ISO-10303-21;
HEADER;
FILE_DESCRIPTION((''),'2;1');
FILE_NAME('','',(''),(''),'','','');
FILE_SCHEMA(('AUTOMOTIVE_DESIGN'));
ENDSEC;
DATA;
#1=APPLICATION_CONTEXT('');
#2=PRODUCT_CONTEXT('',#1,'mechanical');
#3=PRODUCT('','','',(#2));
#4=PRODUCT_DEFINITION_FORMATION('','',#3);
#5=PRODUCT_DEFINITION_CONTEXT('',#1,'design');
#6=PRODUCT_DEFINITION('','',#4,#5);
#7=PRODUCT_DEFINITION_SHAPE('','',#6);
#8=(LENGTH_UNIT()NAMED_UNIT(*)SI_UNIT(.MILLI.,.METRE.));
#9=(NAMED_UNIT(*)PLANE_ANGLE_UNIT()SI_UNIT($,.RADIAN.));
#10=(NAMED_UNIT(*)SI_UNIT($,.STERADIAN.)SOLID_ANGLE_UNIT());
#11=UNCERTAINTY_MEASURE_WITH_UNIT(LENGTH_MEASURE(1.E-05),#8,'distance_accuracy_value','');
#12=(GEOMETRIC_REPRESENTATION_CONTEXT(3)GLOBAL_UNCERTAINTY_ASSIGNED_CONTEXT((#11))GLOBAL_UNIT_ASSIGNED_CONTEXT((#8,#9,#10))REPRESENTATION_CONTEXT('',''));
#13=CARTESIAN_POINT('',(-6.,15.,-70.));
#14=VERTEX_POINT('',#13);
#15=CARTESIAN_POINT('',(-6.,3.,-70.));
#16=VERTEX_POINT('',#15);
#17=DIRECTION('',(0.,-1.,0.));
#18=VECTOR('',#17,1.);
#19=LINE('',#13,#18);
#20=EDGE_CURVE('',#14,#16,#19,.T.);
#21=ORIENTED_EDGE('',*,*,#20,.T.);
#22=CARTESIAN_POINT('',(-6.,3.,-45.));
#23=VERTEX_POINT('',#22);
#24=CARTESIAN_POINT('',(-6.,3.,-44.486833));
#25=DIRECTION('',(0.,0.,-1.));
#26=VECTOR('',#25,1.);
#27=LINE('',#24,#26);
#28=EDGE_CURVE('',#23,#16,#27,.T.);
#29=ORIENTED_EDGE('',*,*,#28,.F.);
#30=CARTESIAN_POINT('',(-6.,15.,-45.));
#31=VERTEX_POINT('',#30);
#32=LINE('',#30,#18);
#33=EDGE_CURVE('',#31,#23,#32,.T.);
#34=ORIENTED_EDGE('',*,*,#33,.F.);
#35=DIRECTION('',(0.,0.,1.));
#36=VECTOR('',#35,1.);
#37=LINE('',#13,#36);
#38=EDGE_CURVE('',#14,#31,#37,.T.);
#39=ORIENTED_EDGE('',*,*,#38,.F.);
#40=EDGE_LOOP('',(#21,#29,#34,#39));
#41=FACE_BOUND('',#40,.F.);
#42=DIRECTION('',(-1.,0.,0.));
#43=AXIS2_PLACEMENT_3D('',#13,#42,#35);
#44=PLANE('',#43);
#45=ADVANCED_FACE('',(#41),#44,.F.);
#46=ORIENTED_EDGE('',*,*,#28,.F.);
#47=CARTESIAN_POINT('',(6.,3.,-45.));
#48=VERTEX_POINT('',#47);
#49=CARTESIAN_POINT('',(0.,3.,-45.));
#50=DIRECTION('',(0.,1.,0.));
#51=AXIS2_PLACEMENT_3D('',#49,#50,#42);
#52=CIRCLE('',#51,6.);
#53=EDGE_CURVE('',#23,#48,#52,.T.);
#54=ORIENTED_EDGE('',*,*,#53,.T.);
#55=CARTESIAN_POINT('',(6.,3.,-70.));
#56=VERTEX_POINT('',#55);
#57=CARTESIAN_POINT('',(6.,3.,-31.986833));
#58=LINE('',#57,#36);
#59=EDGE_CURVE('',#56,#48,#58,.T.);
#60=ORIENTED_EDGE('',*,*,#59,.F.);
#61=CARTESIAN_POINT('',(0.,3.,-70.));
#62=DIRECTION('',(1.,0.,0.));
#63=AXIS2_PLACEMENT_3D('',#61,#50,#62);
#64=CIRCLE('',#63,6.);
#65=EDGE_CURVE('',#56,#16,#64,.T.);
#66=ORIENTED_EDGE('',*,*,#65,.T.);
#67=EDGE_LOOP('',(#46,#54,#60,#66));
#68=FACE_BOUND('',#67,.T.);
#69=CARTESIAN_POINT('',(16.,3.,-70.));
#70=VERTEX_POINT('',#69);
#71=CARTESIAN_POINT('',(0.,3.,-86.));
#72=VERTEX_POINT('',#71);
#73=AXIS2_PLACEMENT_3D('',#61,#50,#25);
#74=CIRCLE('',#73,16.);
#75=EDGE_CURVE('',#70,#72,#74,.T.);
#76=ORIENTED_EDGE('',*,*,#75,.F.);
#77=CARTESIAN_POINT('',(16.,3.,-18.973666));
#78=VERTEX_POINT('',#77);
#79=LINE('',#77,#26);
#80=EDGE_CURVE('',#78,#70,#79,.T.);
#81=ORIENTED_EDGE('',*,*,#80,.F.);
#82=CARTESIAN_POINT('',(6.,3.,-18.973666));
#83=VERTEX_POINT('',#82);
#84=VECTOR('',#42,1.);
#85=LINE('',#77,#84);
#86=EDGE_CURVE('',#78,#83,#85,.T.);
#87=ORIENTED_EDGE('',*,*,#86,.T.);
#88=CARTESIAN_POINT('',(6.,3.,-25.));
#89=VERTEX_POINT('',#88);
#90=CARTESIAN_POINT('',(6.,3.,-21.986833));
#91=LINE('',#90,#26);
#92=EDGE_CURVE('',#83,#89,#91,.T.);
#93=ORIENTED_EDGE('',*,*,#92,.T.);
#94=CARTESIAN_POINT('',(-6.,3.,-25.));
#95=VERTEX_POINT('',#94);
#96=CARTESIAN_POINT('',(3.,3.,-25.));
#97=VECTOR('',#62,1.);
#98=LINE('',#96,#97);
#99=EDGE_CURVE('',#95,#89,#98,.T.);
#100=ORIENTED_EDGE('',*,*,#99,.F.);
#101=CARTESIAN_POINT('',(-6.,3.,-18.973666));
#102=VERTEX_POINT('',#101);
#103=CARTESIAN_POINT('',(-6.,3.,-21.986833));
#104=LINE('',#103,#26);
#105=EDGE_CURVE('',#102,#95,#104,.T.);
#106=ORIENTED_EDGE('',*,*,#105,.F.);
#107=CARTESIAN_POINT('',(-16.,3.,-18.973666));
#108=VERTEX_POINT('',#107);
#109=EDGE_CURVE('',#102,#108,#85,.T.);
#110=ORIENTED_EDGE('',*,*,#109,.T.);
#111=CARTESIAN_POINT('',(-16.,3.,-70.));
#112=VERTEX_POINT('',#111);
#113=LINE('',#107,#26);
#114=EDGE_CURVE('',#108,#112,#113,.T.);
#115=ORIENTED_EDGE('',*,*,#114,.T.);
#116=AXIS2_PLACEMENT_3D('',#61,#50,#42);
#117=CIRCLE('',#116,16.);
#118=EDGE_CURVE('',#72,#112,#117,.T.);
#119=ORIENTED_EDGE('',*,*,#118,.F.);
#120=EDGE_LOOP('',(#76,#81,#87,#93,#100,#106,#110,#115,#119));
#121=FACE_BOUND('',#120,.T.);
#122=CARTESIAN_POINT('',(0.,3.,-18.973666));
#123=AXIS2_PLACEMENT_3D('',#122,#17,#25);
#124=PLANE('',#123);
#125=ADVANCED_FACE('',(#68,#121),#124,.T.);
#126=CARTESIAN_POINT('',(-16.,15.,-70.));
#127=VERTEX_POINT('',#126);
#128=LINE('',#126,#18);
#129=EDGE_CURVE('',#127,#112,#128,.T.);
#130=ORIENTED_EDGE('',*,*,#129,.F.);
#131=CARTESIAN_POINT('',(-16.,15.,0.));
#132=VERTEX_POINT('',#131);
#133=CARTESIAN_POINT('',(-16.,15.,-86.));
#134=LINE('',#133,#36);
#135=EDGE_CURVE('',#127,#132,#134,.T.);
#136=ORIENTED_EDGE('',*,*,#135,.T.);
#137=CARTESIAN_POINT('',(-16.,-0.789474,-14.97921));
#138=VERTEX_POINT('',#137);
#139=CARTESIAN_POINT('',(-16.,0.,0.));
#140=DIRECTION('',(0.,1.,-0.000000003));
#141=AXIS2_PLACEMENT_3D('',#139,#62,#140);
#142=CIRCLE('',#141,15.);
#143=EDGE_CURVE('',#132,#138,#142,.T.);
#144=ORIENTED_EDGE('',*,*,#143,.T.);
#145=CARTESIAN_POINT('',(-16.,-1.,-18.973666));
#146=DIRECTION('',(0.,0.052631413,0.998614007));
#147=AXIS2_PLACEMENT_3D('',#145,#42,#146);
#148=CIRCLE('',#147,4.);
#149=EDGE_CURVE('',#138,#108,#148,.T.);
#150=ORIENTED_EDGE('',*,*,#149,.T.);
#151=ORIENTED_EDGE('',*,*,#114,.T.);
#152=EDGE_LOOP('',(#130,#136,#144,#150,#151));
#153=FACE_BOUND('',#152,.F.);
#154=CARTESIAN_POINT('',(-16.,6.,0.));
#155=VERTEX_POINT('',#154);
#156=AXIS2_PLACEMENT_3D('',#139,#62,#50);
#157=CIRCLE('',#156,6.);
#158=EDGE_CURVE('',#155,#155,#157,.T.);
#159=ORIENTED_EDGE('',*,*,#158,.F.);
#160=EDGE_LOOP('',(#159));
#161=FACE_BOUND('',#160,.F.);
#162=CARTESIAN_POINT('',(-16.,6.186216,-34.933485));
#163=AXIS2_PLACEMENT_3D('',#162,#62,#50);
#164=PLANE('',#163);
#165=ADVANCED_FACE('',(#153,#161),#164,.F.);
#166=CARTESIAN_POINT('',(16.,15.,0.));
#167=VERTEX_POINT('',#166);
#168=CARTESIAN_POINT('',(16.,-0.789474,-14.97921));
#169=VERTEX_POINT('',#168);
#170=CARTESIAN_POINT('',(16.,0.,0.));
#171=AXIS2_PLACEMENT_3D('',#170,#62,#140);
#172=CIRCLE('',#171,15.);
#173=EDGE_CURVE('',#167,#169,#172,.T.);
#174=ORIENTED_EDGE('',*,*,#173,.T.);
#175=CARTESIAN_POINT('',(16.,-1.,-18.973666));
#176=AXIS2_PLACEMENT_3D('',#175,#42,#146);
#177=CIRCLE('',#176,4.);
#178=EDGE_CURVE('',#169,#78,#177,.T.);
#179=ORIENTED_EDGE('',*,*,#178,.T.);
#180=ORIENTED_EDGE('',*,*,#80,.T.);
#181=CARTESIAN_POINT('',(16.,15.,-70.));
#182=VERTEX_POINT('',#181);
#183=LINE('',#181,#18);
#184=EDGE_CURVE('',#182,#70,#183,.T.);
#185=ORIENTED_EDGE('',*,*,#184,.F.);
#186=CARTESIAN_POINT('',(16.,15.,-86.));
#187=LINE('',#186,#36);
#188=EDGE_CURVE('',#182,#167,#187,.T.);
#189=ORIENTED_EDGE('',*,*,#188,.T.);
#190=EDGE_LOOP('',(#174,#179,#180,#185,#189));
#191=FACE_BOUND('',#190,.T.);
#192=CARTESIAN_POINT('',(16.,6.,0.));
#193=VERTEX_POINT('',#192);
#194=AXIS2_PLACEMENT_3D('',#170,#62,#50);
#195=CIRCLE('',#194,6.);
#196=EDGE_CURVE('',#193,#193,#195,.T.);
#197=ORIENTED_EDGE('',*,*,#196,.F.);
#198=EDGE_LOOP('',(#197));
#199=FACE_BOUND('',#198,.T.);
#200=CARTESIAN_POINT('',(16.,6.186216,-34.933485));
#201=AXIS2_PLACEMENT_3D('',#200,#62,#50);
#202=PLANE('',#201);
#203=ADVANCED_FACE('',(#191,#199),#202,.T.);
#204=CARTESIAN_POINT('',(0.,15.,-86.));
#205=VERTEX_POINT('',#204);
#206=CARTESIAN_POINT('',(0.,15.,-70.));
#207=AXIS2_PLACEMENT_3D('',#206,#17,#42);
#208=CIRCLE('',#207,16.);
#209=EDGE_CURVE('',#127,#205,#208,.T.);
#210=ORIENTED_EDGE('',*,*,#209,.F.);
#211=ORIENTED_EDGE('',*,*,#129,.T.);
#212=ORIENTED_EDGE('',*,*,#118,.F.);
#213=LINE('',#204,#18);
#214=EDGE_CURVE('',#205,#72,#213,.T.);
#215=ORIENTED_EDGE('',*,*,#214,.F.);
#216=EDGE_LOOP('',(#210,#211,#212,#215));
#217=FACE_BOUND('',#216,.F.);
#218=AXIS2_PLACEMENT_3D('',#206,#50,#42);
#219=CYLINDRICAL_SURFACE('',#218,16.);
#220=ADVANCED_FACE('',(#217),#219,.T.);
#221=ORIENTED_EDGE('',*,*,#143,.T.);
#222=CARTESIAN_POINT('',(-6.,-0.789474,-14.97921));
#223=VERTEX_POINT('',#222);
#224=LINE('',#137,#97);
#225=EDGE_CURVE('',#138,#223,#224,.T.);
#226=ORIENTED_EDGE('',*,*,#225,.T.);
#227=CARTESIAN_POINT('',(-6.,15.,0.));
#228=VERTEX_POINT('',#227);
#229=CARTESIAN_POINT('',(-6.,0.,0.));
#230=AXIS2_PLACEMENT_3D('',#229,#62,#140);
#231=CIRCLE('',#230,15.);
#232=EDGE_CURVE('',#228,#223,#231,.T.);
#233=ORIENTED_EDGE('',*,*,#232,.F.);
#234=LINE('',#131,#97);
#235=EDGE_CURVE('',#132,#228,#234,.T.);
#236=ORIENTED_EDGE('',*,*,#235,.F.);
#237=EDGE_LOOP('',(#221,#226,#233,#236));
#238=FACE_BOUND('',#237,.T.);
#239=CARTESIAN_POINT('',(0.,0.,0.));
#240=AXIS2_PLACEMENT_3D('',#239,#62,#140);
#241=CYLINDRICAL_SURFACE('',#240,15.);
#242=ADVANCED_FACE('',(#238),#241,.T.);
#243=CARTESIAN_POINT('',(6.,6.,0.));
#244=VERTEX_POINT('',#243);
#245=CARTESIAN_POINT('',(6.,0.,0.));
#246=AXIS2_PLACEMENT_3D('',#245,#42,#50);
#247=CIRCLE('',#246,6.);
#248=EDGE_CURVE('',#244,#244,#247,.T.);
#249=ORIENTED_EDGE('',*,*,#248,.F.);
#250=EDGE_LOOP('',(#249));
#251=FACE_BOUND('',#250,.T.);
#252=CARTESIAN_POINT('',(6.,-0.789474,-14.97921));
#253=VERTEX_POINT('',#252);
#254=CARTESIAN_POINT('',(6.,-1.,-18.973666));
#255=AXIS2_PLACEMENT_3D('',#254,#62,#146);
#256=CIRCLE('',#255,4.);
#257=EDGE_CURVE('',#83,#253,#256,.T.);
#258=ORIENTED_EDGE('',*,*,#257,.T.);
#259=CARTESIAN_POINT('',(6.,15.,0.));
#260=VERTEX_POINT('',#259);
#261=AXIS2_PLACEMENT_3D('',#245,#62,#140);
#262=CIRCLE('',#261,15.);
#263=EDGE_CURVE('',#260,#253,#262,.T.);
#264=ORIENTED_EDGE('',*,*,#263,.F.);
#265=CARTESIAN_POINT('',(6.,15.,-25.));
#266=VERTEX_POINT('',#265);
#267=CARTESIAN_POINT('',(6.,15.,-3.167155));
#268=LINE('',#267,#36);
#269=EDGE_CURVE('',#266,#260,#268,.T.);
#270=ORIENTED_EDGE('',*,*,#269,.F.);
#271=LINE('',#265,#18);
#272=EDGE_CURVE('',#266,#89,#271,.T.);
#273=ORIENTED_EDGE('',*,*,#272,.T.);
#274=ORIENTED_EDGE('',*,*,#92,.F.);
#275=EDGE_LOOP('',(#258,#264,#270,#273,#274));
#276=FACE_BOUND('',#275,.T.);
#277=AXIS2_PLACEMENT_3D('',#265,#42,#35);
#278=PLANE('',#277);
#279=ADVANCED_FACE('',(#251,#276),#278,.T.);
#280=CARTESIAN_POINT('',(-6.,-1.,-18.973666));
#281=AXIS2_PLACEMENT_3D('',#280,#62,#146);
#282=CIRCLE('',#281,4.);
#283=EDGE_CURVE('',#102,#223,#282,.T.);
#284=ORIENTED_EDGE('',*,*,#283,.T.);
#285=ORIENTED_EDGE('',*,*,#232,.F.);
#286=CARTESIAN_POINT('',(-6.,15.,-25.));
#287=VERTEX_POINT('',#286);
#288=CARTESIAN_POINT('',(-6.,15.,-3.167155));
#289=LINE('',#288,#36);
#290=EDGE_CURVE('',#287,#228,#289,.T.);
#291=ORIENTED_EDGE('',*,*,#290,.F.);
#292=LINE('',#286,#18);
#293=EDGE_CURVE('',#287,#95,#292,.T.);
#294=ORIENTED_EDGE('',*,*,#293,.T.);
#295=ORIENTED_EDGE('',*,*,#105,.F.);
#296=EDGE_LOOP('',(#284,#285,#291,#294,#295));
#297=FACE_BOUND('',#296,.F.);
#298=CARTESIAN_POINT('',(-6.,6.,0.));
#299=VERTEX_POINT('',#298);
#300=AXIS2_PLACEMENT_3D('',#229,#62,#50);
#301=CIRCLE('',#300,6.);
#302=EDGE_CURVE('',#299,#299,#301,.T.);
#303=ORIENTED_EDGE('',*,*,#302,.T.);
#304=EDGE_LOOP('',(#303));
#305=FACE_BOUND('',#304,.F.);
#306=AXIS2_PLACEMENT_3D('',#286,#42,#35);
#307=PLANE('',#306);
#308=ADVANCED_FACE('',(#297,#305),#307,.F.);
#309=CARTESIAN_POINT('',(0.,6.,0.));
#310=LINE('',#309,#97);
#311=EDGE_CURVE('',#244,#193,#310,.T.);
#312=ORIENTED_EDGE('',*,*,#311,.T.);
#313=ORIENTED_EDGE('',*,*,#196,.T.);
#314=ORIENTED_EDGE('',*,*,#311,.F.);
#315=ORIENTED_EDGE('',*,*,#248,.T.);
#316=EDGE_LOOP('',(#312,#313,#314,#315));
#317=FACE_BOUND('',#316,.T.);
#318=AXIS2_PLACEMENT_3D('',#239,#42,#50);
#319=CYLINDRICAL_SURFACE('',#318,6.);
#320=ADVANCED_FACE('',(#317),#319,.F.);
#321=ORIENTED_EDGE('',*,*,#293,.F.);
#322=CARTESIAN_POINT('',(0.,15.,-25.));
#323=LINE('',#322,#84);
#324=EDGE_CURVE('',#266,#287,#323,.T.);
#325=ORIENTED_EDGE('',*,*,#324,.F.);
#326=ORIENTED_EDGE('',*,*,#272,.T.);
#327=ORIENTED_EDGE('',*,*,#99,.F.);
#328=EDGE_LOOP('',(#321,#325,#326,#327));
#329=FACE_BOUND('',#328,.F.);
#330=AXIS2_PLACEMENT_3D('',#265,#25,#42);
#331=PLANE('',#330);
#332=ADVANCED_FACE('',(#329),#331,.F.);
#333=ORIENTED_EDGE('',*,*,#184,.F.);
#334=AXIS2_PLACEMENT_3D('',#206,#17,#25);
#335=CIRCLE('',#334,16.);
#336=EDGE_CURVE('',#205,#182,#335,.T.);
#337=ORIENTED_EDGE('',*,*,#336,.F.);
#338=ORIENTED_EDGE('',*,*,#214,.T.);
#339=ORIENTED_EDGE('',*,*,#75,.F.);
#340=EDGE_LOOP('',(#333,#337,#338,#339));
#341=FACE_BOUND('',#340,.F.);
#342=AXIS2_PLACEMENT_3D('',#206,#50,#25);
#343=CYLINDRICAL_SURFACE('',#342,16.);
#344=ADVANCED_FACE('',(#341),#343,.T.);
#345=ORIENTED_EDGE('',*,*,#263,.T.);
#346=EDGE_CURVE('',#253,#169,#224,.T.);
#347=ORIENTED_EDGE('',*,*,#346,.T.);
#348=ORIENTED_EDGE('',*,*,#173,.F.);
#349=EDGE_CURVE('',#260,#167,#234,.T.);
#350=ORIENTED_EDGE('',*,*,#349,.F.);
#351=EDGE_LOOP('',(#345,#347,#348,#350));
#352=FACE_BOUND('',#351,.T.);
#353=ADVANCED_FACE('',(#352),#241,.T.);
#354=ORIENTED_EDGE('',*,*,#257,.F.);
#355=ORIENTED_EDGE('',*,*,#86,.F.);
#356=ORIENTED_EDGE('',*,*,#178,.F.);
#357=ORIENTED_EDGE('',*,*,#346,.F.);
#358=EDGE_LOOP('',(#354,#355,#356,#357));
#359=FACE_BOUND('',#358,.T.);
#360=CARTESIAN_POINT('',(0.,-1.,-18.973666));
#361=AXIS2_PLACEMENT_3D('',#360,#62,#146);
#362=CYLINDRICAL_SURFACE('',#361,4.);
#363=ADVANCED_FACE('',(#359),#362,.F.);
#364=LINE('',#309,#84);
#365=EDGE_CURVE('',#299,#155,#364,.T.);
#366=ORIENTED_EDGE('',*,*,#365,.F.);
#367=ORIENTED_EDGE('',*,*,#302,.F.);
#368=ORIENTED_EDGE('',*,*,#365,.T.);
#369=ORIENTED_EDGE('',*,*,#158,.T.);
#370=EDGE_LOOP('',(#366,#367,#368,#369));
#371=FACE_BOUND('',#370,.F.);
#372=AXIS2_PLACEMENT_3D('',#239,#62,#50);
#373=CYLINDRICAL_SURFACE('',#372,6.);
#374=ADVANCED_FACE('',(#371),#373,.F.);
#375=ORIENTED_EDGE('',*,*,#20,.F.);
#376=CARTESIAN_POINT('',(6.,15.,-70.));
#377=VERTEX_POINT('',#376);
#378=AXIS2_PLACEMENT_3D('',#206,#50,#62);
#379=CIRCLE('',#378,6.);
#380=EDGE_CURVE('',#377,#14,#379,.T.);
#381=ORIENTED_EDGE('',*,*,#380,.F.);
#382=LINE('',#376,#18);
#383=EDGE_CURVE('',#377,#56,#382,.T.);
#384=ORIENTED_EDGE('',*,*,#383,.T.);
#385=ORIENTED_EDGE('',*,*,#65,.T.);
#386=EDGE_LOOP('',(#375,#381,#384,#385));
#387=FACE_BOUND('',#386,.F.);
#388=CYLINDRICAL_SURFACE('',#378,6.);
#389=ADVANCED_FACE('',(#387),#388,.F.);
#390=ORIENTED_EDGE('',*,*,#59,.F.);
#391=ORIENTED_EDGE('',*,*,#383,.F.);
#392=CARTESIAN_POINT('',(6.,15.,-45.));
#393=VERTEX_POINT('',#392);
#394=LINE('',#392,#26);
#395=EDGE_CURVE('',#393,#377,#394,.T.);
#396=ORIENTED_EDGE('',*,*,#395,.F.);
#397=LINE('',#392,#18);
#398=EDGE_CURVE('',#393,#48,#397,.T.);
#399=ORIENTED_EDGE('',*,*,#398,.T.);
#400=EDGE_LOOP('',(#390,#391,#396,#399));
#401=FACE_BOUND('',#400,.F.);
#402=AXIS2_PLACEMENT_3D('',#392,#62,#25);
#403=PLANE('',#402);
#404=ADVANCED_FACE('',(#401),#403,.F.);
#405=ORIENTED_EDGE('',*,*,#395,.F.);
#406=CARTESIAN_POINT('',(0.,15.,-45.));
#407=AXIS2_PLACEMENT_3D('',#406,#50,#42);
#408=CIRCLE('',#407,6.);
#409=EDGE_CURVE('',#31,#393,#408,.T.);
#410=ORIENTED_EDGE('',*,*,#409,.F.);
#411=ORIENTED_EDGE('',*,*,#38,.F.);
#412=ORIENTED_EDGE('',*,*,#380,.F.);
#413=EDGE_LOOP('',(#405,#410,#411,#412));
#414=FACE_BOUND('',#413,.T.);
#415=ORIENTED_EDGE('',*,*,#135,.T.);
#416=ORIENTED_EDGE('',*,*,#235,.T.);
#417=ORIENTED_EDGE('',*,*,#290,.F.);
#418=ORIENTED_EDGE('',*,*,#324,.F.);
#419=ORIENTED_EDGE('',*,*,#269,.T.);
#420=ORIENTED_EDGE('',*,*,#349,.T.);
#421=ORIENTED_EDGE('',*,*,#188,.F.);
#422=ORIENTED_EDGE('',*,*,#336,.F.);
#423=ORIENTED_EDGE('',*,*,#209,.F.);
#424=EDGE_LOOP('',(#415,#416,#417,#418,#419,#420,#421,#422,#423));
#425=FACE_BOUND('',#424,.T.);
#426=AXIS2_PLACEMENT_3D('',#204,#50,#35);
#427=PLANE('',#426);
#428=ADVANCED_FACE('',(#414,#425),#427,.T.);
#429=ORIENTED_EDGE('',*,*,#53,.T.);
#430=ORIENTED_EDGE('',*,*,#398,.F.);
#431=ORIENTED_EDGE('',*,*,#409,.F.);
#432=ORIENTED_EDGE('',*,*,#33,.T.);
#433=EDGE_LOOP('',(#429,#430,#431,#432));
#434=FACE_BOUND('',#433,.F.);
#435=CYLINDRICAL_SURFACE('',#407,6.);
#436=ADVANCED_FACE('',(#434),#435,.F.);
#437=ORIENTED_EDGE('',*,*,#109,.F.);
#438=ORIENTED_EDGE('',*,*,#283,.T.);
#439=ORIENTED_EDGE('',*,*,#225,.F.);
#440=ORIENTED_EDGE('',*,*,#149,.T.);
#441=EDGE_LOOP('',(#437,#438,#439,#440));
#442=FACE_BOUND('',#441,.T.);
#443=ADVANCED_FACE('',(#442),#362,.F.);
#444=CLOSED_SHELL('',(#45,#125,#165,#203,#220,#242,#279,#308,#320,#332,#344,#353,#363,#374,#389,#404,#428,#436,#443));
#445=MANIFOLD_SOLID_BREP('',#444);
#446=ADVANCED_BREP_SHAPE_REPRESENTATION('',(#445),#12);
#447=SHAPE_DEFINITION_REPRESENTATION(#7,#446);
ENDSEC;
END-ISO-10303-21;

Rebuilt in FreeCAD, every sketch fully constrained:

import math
import FreeCAD as App
import Part
import Sketcher
from FreeCAD import Vector
Q = App.Units.Quantity


def add_polygon(sketch, points):
    """Adds a closed chain of lines whose ends are joined by coincident constraints."""
    first, n = sketch.GeometryCount, len(points)
    for a, b in zip(points, points[1:] + points[:1]):
        sketch.addGeometry(Part.LineSegment(App.Vector(*a, 0), App.Vector(*b, 0)), False)
    for i in range(n):
        sketch.addConstraint(Sketcher.Constraint("Coincident", first + i, 2, first + (i + 1) % n, 1))

doc = App.newDocument("Part")
body = doc.addObject("PartDesign::Body", "Body")

# Sketch on YZ plane
sketch1 = body.newObject("Sketcher::SketchObject", "Sketch")
sketch1.AttachmentSupport = (doc.getObject("YZ_Plane"), [""])
sketch1.MapMode = "FlatFace"
sketch1.addGeometry([
    Part.LineSegment(Vector(15, -86, 0), Vector(15, 0, 0)),  # 0
    Part.ArcOfCircle(Part.Circle(Vector(0, 0, 0), Vector(0, 0, 1), 15), math.radians(0), math.radians(267)),  # 1
    Part.ArcOfCircle(Part.Circle(Vector(-1, -19, 0), Vector(0, 0, 1), 4), math.radians(0), math.radians(87)),  # 2
    Part.LineSegment(Vector(3, -19, 0), Vector(3, -86, 0)),  # 3
    Part.LineSegment(Vector(3, -86, 0), Vector(15, -86, 0)),  # 4
    Part.Circle(Vector(0, 0, 0), Vector(0, 0, 1), 6),  # 5
], False)
sketch1.addConstraint([
    Sketcher.Constraint("Tangent", 0, 2, 1, 1),
    Sketcher.Constraint("Tangent", 1, 2, 2, 2),
    Sketcher.Constraint("Tangent", 2, 1, 3, 1),
    Sketcher.Constraint("Coincident", 3, 2, 4, 1),
    Sketcher.Constraint("Coincident", 4, 2, 0, 1),
    Sketcher.Constraint("Vertical", 0),
    Sketcher.Constraint("Vertical", 3),
    Sketcher.Constraint("Horizontal", 4),
    Sketcher.Constraint("Coincident", 1, 3, -1, 1),
    Sketcher.Constraint("Coincident", 5, 3, -1, 1),
    Sketcher.Constraint("Diameter", 5, Q("12 mm")),
    Sketcher.Constraint("Radius", 1, Q("15 mm")),
    Sketcher.Constraint("Radius", 2, Q("4 mm")),
    Sketcher.Constraint("DistanceX", 4, 1, 4, 2, Q("12 mm")),
    Sketcher.Constraint("DistanceY", 0, 1, 0, 2, Q("86 mm")),
])
pad1 = body.newObject("PartDesign::Pad", "Pad")
pad1.Profile = sketch1
pad1.Type = "TwoLengths"
pad1.Length = 16
pad1.Length2 = 16

# Sketch on XZ plane
sketch2 = body.newObject("Sketcher::SketchObject", "Sketch001")
sketch2.AttachmentSupport = (doc.getObject("XZ_Plane"), [""])
sketch2.MapMode = "FlatFace"
sketch2.AttachmentOffset = App.Placement(Vector(0, 0, -15), App.Rotation())
add_polygon(sketch2, [(6, 19), (6, -25), (-6, -25), (-6, 19)])  # lines 0-3
sketch2.addGeometry(Part.LineSegment(Vector(-6, -70, 0), Vector(-6, -45, 0)), False)  # 4
sketch2.addGeometry(Part.ArcOfCircle(Part.Circle(Vector(0, -45, 0), Vector(0, 0, 1), 6), math.radians(0), math.radians(180)), False)  # 5
sketch2.addGeometry(Part.LineSegment(Vector(6, -45, 0), Vector(6, -70, 0)), False)  # 6
sketch2.addGeometry(Part.ArcOfCircle(Part.Circle(Vector(0, -70, 0), Vector(0, 0, 1), 6), math.radians(180), math.radians(360)), False)  # 7
sketch2.addGeometry(Part.ArcOfCircle(Part.Circle(Vector(0, -70, 0), Vector(0, 0, 1), 16), math.radians(-90), math.radians(0)), False)  # 8
sketch2.addGeometry(Part.LineSegment(Vector(16, -70, 0), Vector(16, -86, 0)), False)  # 9
sketch2.addGeometry(Part.LineSegment(Vector(16, -86, 0), Vector(0, -86, 0)), False)  # 10
sketch2.addGeometry(Part.LineSegment(Vector(-16, -86, 0), Vector(-16, -70, 0)), False)  # 11
sketch2.addGeometry(Part.ArcOfCircle(Part.Circle(Vector(0, -70, 0), Vector(0, 0, 1), 16), math.radians(180), math.radians(270)), False)  # 12
sketch2.addGeometry(Part.LineSegment(Vector(0, -86, 0), Vector(-16, -86, 0)), False)  # 13
sketch2.addConstraint([
    Sketcher.Constraint("Tangent", 4, 2, 5, 2),
    Sketcher.Constraint("Tangent", 5, 1, 6, 1),
    Sketcher.Constraint("Tangent", 6, 2, 7, 2),
    Sketcher.Constraint("Tangent", 7, 1, 4, 1),
    Sketcher.Constraint("Tangent", 8, 2, 9, 1),
    Sketcher.Constraint("Coincident", 9, 2, 10, 1),
    Sketcher.Constraint("Tangent", 10, 2, 8, 1),
    Sketcher.Constraint("Tangent", 11, 2, 12, 1),
    Sketcher.Constraint("Tangent", 12, 2, 13, 1),
    Sketcher.Constraint("Coincident", 13, 2, 11, 1),
    Sketcher.Constraint("Vertical", 0),
    Sketcher.Constraint("Horizontal", 1),
    Sketcher.Constraint("Vertical", 2),
    Sketcher.Constraint("Horizontal", 3),
    Sketcher.Constraint("Vertical", 4),
    Sketcher.Constraint("Vertical", 6),
    Sketcher.Constraint("Vertical", 9),
    Sketcher.Constraint("Horizontal", 10),
    Sketcher.Constraint("Vertical", 11),
    Sketcher.Constraint("Horizontal", 13),
    Sketcher.Constraint("Coincident", 8, 3, 7, 3),
    Sketcher.Constraint("Coincident", 12, 3, 7, 3),
    Sketcher.Constraint("Equal", 8, 12),
    Sketcher.Constraint("PointOnObject", 5, 3, -2),
    Sketcher.Constraint("Vertical", 2, 2, 4, 2),
    Sketcher.Constraint("Vertical", 3, 2, 5, 1),
    Sketcher.Constraint("Radius", 5, Q("6 mm")),
    Sketcher.Constraint("Radius", 8, Q("16 mm")),
    Sketcher.Constraint("DistanceY", 4, 1, 4, 2, Q("25 mm")),
    Sketcher.Constraint("DistanceY", 5, 3, -1, 1, Q("45 mm")),
    Sketcher.Constraint("DistanceY", 0, 2, -1, 1, Q("25 mm")),
    Sketcher.Constraint("DistanceY", 0, 2, 0, 1, Q("43.665691 mm")),
])
pocket1 = body.newObject("PartDesign::Pocket", "Pocket")
pocket1.Profile = sketch2
pocket1.Type = "ThroughAll"
pocket1.Reversed = True

doc.recompute()
